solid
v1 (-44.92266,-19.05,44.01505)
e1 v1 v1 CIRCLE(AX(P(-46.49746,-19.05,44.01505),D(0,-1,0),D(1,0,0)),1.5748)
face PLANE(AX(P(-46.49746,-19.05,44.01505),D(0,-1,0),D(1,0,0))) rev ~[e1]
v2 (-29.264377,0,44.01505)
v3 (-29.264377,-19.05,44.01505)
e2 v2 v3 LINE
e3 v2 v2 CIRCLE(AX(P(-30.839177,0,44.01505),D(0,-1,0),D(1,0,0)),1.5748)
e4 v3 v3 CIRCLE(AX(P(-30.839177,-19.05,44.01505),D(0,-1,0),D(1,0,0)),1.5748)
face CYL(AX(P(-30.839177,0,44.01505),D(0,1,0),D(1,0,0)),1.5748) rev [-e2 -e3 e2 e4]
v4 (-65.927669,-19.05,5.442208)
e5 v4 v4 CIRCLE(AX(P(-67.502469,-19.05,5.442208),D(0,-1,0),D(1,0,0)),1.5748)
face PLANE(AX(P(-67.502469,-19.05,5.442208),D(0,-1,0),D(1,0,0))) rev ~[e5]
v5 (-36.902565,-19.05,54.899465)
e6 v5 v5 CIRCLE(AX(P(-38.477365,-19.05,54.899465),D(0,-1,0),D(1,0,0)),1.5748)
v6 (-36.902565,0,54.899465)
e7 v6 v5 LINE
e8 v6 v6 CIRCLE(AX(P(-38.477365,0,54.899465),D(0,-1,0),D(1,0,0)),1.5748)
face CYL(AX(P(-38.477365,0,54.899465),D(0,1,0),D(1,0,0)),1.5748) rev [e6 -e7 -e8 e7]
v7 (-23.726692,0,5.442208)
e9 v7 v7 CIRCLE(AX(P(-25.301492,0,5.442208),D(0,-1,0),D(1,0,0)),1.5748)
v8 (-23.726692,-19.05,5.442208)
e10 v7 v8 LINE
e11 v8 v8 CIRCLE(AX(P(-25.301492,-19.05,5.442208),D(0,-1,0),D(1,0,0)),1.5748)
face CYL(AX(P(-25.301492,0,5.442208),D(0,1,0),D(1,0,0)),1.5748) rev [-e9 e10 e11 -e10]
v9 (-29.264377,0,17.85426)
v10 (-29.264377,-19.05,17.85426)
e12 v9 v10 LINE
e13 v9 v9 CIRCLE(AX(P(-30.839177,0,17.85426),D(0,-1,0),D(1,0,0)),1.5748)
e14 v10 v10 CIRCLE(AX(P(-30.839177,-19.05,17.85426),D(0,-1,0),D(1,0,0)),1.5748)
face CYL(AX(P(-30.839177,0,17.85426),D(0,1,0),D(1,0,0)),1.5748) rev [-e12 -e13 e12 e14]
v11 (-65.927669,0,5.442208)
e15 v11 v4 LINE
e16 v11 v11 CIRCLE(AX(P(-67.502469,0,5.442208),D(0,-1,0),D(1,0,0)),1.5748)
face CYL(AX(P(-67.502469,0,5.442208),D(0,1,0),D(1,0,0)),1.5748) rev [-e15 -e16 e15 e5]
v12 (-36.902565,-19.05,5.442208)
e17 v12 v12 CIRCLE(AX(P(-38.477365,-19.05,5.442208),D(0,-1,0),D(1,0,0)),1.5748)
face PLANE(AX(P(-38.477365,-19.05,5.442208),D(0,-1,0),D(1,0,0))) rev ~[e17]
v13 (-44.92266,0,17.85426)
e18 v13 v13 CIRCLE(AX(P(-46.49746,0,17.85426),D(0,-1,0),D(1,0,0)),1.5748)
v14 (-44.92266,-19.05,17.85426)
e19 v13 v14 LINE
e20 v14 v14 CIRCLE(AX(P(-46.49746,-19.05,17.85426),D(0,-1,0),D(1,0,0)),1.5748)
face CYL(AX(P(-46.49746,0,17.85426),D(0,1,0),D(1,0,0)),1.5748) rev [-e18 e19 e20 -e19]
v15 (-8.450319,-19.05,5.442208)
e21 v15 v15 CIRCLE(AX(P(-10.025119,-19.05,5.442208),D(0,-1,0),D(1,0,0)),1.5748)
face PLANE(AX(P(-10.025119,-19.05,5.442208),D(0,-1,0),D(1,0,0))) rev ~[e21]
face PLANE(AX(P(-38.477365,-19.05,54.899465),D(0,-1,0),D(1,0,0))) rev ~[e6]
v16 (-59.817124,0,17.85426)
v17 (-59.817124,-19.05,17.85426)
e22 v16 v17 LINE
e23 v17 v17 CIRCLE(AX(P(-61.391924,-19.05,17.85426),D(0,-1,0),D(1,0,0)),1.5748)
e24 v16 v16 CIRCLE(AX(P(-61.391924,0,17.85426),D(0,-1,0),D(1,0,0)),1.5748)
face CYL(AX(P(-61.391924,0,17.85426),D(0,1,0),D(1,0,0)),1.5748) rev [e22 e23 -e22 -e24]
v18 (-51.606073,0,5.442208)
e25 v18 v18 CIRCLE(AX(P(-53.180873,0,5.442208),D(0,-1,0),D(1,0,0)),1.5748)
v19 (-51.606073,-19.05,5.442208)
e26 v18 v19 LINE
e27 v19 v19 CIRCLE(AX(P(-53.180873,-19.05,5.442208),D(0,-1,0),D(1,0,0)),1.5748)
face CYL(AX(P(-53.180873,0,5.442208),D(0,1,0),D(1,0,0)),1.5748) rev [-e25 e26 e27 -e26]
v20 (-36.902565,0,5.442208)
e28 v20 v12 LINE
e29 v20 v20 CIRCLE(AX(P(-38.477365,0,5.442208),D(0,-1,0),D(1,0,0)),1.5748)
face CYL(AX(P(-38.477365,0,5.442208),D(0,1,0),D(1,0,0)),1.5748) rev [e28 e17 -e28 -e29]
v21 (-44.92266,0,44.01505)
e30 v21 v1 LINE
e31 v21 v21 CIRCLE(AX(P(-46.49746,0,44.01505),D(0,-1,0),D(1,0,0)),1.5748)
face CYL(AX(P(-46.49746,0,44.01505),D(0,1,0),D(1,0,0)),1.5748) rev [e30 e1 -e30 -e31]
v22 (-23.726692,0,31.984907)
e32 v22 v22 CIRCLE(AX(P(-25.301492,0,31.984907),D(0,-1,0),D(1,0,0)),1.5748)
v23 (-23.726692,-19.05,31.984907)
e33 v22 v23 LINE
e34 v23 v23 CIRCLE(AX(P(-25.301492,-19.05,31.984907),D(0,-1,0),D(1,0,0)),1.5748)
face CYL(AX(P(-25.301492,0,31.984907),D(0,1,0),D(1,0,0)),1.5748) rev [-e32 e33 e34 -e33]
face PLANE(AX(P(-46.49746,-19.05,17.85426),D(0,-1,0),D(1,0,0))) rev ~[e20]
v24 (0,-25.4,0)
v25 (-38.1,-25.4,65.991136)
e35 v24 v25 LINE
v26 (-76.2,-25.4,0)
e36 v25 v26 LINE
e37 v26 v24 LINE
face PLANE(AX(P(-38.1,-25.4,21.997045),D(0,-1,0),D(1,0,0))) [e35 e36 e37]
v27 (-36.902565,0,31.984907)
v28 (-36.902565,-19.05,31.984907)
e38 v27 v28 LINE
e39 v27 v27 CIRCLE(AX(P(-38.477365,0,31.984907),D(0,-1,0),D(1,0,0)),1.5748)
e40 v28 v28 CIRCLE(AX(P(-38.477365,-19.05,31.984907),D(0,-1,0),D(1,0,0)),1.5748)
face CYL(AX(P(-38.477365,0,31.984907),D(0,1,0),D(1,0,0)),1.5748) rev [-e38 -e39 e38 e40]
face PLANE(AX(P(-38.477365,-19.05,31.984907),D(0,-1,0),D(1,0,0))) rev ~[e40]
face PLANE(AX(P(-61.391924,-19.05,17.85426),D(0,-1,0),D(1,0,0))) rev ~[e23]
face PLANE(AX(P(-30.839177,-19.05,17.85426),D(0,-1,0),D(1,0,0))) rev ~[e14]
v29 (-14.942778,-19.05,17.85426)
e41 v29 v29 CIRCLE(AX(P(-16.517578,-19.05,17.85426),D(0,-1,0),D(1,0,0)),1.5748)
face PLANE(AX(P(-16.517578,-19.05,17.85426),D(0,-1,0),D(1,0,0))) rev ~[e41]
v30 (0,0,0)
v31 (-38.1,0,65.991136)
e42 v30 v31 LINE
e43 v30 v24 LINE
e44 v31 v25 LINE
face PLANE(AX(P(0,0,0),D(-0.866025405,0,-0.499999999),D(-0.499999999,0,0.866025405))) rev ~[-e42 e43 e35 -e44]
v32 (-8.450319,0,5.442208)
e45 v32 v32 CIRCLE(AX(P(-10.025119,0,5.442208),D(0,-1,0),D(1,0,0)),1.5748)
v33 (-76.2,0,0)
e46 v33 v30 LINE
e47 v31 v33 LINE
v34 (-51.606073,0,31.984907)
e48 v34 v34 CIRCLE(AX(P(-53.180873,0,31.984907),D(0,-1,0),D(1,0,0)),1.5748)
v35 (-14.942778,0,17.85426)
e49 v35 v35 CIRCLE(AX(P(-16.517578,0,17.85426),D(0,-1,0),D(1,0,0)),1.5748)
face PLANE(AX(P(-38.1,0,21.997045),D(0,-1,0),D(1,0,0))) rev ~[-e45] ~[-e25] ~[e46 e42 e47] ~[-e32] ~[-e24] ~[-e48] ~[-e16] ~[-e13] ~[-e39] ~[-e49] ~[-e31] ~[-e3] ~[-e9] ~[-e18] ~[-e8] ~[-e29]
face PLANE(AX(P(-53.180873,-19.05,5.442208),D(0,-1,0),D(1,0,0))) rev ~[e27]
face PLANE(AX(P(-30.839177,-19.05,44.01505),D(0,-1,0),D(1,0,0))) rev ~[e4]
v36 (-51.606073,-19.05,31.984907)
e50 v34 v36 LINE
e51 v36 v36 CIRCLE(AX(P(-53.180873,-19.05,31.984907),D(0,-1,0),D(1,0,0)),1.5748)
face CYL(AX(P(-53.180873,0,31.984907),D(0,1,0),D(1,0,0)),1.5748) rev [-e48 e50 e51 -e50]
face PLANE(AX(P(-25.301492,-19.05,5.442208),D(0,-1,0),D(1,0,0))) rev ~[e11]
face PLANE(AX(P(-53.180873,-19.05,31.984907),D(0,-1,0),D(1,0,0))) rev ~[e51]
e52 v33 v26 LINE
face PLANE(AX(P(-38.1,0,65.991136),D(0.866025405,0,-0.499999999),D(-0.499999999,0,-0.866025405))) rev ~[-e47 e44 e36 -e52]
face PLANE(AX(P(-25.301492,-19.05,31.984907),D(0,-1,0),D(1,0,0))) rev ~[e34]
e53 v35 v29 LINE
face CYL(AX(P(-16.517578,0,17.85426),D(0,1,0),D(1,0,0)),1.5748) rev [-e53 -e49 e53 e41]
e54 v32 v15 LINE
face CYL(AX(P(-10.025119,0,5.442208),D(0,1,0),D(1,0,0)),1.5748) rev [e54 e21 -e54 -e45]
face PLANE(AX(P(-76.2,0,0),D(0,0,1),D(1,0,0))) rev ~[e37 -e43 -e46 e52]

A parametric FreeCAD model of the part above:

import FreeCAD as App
import Part
import Sketcher
from FreeCAD import Vector
Q = App.Units.Quantity


def add_polygon(sketch, points):
    """Adds a closed chain of lines whose ends are joined by coincident constraints."""
    first, n = sketch.GeometryCount, len(points)
    for a, b in zip(points, points[1:] + points[:1]):
        sketch.addGeometry(Part.LineSegment(App.Vector(*a, 0), App.Vector(*b, 0)), False)
    for i in range(n):
        sketch.addConstraint(Sketcher.Constraint("Coincident", first + i, 2, first + (i + 1) % n, 1))

doc = App.newDocument("Part")
body = doc.addObject("PartDesign::Body", "Body")

# Sketch on XZ plane
sketch1 = doc.addObject("Sketcher::SketchObject", "Sketch")
body.addObject(sketch1)
sketch1.AttachmentSupport = (doc.XZ_Plane, [""])
sketch1.MapMode = "FlatFace"
add_polygon(sketch1, [(-76, 0), (0, 0), (-38, 66)])  # lines 0-2
sketch1.addConstraint([
    Sketcher.Constraint("Horizontal", 0),
    Sketcher.Constraint("Coincident", 0, 2, -1, 1),
    Sketcher.Constraint("Equal", 1, 2),
    Sketcher.Constraint("DistanceX", 0, 1, 0, 2, Q("3 in")),
    Sketcher.Constraint("Distance", 1, Q("3 in")),
])
pad1 = doc.addObject("PartDesign::Pad", "Pad")
body.addObject(pad1)
pad1.Profile = sketch1
pad1.Length = Q("1 in")

# Sketch on XZ plane
sketch2 = doc.addObject("Sketcher::SketchObject", "Sketch001")
body.addObject(sketch2)
sketch2.AttachmentSupport = (doc.XZ_Plane, [""])
sketch2.MapMode = "FlatFace"
sketch2.addGeometry([
    Part.Circle(Vector(-38.5, 54.9, 0), Vector(0, 0, 1), 1.6),  # 0
    Part.Circle(Vector(-46.5, 44, 0), Vector(0, 0, 1), 1.6),  # 1
    Part.Circle(Vector(-53.2, 32, 0), Vector(0, 0, 1), 1.6),  # 2
    Part.Circle(Vector(-61.4, 17.9, 0), Vector(0, 0, 1), 1.6),  # 3
    Part.Circle(Vector(-67.5, 5.4, 0), Vector(0, 0, 1), 1.6),  # 4
    Part.Circle(Vector(-30.8, 44, 0), Vector(0, 0, 1), 1.6),  # 5
    Part.Circle(Vector(-38.5, 32, 0), Vector(0, 0, 1), 1.6),  # 6
    Part.Circle(Vector(-25.3, 32, 0), Vector(0, 0, 1), 1.6),  # 7
    Part.Circle(Vector(-46.5, 17.9, 0), Vector(0, 0, 1), 1.6),  # 8
    Part.Circle(Vector(-30.8, 17.9, 0), Vector(0, 0, 1), 1.6),  # 9
    Part.Circle(Vector(-16.5, 17.9, 0), Vector(0, 0, 1), 1.6),  # 10
    Part.Circle(Vector(-38.5, 5.4, 0), Vector(0, 0, 1), 1.6),  # 11
    Part.Circle(Vector(-53.2, 5.4, 0), Vector(0, 0, 1), 1.6),  # 12
    Part.Circle(Vector(-25.3, 5.4, 0), Vector(0, 0, 1), 1.6),  # 13
    Part.Circle(Vector(-10, 5.4, 0), Vector(0, 0, 1), 1.6),  # 14
], False)
sketch2.addConstraint([
    Sketcher.Constraint("Equal", 0, 1),
    Sketcher.Constraint("Equal", 1, 2),
    Sketcher.Constraint("Equal", 2, 3),
    Sketcher.Constraint("Equal", 3, 4),
    Sketcher.Constraint("Equal", 4, 5),
    Sketcher.Constraint("Equal", 5, 6),
    Sketcher.Constraint("Equal", 6, 7),
    Sketcher.Constraint("Equal", 7, 8),
    Sketcher.Constraint("Equal", 8, 9),
    Sketcher.Constraint("Equal", 9, 10),
    Sketcher.Constraint("Equal", 10, 11),
    Sketcher.Constraint("Equal", 11, 12),
    Sketcher.Constraint("Equal", 12, 13),
    Sketcher.Constraint("Equal", 13, 14),
    Sketcher.Constraint("Horizontal", 1, 3, 5, 3),
    Sketcher.Constraint("Horizontal", 2, 3, 6, 3),
    Sketcher.Constraint("Horizontal", 6, 3, 7, 3),
    Sketcher.Constraint("Horizontal", 3, 3, 8, 3),
    Sketcher.Constraint("Horizontal", 8, 3, 9, 3),
    Sketcher.Constraint("Horizontal", 9, 3, 10, 3),
    Sketcher.Constraint("Horizontal", 4, 3, 11, 3),
    Sketcher.Constraint("Horizontal", 11, 3, 12, 3),
    Sketcher.Constraint("Horizontal", 12, 3, 13, 3),
    Sketcher.Constraint("Horizontal", 13, 3, 14, 3),
    Sketcher.Constraint("Vertical", 0, 3, 6, 3),
    Sketcher.Constraint("Vertical", 1, 3, 8, 3),
    Sketcher.Constraint("Vertical", 5, 3, 9, 3),
    Sketcher.Constraint("Vertical", 6, 3, 11, 3),
    Sketcher.Constraint("Vertical", 2, 3, 12, 3),
    Sketcher.Constraint("Vertical", 7, 3, 13, 3),
    Sketcher.Constraint("Diameter", 0, Q("0.124 in")),
    Sketcher.Constraint("DistanceY", 4, 3, 2, 3, 26.542699),
    Sketcher.Constraint("DistanceX", 9, 3, 10, 3, 14.321599),
    Sketcher.Constraint("DistanceX", 1, 3, -1, 1, 46.49746),
    Sketcher.Constraint("DistanceY", -1, 1, 1, 3, 44.01505),
    Sketcher.Constraint("DistanceY", -1, 1, 3, 3, 17.85426),
    Sketcher.Constraint("DistanceX", 4, 3, -1, 1, 67.502469),
    Sketcher.Constraint("DistanceX", 7, 3, -1, 1, 25.301492),
    Sketcher.Constraint("DistanceX", 10, 3, -1, 1, 16.517578),
    Sketcher.Constraint("DistanceX", 14, 3, -1, 1, 10.025119),
    Sketcher.Constraint("DistanceX", 3, 3, 2, 3, 8.211051),
    Sketcher.Constraint("DistanceX", 3, 3, 0, 3, 22.914559),
    Sketcher.Constraint("DistanceY", 4, 3, 3, 3, 12.412052),
    Sketcher.Constraint("DistanceX", 2, 3, 7, 3, 27.879381),
    Sketcher.Constraint("DistanceY", -1, 1, 0, 3, 54.899465),
])
pocket1 = doc.addObject("PartDesign::Pocket", "Pocket")
body.addObject(pocket1)
pocket1.Profile = sketch2
pocket1.Length = Q("0.75 in")
pocket1.Reversed = True

doc.recompute()
